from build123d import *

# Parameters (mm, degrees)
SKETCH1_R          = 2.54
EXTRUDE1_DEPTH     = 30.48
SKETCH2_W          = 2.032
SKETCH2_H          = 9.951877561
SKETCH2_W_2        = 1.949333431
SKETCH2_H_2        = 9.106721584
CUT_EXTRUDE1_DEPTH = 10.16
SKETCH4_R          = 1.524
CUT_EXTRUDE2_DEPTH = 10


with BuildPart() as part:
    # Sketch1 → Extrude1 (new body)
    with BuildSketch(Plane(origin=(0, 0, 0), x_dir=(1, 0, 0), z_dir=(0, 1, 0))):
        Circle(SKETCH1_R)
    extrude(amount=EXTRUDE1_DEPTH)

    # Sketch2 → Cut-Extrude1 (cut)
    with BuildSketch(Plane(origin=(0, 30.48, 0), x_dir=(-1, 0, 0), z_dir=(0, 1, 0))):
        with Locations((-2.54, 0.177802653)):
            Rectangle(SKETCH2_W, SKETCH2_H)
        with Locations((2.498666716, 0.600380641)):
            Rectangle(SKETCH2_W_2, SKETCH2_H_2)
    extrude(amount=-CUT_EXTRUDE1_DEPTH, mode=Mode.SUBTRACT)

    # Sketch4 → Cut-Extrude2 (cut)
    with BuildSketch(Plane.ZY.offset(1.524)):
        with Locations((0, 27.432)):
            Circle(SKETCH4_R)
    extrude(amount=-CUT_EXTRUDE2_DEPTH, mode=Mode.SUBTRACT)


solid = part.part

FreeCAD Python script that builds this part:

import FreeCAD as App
import Part
import Sketcher
from FreeCAD import Vector
Q = App.Units.Quantity


def add_polygon(sketch, points):
    """Adds a closed chain of lines whose ends are joined by coincident constraints."""
    first, n = sketch.GeometryCount, len(points)
    for a, b in zip(points, points[1:] + points[:1]):
        sketch.addGeometry(Part.LineSegment(App.Vector(*a, 0), App.Vector(*b, 0)), False)
    for i in range(n):
        sketch.addConstraint(Sketcher.Constraint("Coincident", first + i, 2, first + (i + 1) % n, 1))

doc = App.newDocument("Part")
params = doc.addObject("Spreadsheet::Sheet", "Params")
for row, (alias, value) in enumerate([
    ("sketch1_diameter", "0.2 in"),
    ("pad1_length", "1.2 in"),
    ("sketch2_width", "0.08 in"),
    ("pocket1_length", "0.4 in"),
    ("sketch3_diameter", "0.12 in"),
    ("pocket2_length", "10 mm"),
], start=1):
    params.set(f"A{row}", alias)
    params.set(f"B{row}", "=" + value)
    params.setAlias(f"B{row}", alias)

body = doc.addObject("PartDesign::Body", "Body")

sketch1 = body.newObject("Sketcher::SketchObject", "Sketch")
sketch1.AttachmentSupport = (doc.getObject("XZ_Plane"), [""])
sketch1.MapMode = "FlatFace"
sketch1.addGeometry(Part.Circle(Vector(0, 0, 0), Vector(0, 0, 1), 2.5), False)
sketch1.addConstraint([
    Sketcher.Constraint("Coincident", 0, 3, -1, 1),
    Sketcher.Constraint("Diameter", 0, Q("0.2 in")),
])
sketch1.setExpression("Constraints[1]", "Params.sketch1_diameter")
pad1 = body.newObject("PartDesign::Pad", "Pad")
pad1.Profile = sketch1
pad1.setExpression("Length", "Params.pad1_length")
pad1.Reversed = True

sketch2 = body.newObject("Sketcher::SketchObject", "Sketch001")
sketch2.AttachmentSupport = (doc.getObject("XZ_Plane"), [""])
sketch2.MapMode = "FlatFace"
sketch2.AttachmentOffset = App.Placement(Vector(0, 0, -1.2 * 25.4), App.Rotation())
add_polygon(sketch2, [(3.6, 5.2), (3.6, -4.8), (1.5, -4.8), (1.5, 5.2)])
add_polygon(sketch2, [(-1.5, 5.2), (-1.5, -4), (-3.5, -4), (-3.5, 5.2)])
sketch2.addConstraint([
    Sketcher.Constraint("Vertical", 0),
    Sketcher.Constraint("Horizontal", 1),
    Sketcher.Constraint("Vertical", 2),
    Sketcher.Constraint("Horizontal", 3),
    Sketcher.Constraint("Vertical", 4),
    Sketcher.Constraint("Horizontal", 5),
    Sketcher.Constraint("Vertical", 6),
    Sketcher.Constraint("Horizontal", 7),
    Sketcher.Constraint("Symmetric", 2, 2, 7, 2, -2),
    Sketcher.Constraint("DistanceX", 1, 2, 1, 1, Q("0.08 in")),
    Sketcher.Constraint("DistanceX", 4, 2, 0, 2, Q("0.2 in")),
    Sketcher.Constraint("DistanceY", 4, 2, 4, 1, 9.106722),
    Sketcher.Constraint("DistanceX", 5, 2, 5, 1, 1.949333),
    Sketcher.Constraint("DistanceY", 0, 2, 0, 1, 9.951878),
    Sketcher.Constraint("DistanceY", -1, 1, 2, 2, 5.153741),
])
sketch2.setExpression("Constraints[17]", "Params.sketch2_width")
pocket1 = body.newObject("PartDesign::Pocket", "Pocket")
pocket1.Profile = sketch2
pocket1.setExpression("Length", "Params.pocket1_length")
pocket1.Reversed = True

sketch3 = body.newObject("Sketcher::SketchObject", "Sketch002")
sketch3.AttachmentSupport = (doc.getObject("YZ_Plane"), [""])
sketch3.MapMode = "FlatFace"
sketch3.AttachmentOffset = App.Placement(Vector(0, 0, -0.06 * 25.4), App.Rotation())
sketch3.addGeometry(Part.Circle(Vector(27.4, 0, 0), Vector(0, 0, 1), 1.5), False)
sketch3.addConstraint([
    Sketcher.Constraint("PointOnObject", 0, 3, -1),
    Sketcher.Constraint("Diameter", 0, Q("0.12 in")),
    Sketcher.Constraint("DistanceX", -1, 1, 0, 3, Q("1.08 in")),
])
sketch3.setExpression("Constraints[1]", "Params.sketch3_diameter")
pocket2 = body.newObject("PartDesign::Pocket", "Pocket001")
pocket2.Profile = sketch3
pocket2.setExpression("Length", "Params.pocket2_length")
pocket2.Reversed = True

doc.recompute()
